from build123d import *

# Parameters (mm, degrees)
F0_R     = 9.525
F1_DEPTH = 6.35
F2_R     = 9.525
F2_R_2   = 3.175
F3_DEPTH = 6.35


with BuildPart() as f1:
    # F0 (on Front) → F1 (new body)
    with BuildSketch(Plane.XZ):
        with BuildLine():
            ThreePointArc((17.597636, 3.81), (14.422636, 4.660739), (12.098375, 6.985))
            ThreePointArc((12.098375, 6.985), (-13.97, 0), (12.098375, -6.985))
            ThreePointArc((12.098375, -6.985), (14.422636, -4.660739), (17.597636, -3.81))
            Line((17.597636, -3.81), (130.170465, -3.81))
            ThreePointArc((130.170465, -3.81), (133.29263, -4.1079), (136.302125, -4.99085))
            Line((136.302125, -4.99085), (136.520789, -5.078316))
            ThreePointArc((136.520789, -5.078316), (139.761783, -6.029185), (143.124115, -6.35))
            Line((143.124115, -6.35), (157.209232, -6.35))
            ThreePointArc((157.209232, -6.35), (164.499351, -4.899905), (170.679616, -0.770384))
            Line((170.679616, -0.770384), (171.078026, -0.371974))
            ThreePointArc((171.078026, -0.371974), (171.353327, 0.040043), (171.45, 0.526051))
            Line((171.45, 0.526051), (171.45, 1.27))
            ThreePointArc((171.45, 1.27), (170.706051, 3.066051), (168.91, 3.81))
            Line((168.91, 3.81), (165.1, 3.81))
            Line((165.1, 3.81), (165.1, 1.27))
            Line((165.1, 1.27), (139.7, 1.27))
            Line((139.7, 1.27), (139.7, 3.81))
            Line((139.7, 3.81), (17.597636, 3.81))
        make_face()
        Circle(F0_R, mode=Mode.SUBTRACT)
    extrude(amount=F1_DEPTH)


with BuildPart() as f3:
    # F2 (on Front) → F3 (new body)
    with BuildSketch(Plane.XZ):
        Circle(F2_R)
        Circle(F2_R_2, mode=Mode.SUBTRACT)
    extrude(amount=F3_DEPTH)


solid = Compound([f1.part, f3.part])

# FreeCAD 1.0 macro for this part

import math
import FreeCAD as App
import Part
import Sketcher
from FreeCAD import Vector
Q = App.Units.Quantity

doc = App.newDocument("Part")
body = doc.addObject("PartDesign::Body", "Body")

sketch1 = doc.addObject("Sketcher::SketchObject", "Sketch")
body.addObject(sketch1)
sketch1.AttachmentSupport = (doc.XZ_Plane, [""])
sketch1.MapMode = "FlatFace"
sketch1.addGeometry(Part.ArcOfCircle(Part.Circle(Vector(17.6, 10.16, 0), Vector(0, 0, 1), 6.35), math.radians(-150), math.radians(-90)), False)
sketch1.addGeometry(Part.ArcOfCircle(Part.Circle(Vector(0, 0, 0), Vector(0, 0, 1), 13.97), math.radians(30), math.radians(330)), False)
sketch1.addGeometry(Part.ArcOfCircle(Part.Circle(Vector(17.6, -10.16, 0), Vector(0, 0, 1), 6.35), math.radians(90), math.radians(150)), False)
sketch1.addGeometry(Part.LineSegment(Vector(17.6, -3.81, 0), Vector(130.17, -3.81, 0)), False)
sketch1.addGeometry(Part.ArcOfCircle(Part.Circle(Vector(130.17, -20.32, 0), Vector(0, 0, 1), 16.51), math.radians(68), math.radians(90)), False)
sketch1.addGeometry(Part.LineSegment(Vector(136.3, -4.99, 0), Vector(136.52, -5.08, 0)), False)
sketch1.addGeometry(Part.ArcOfCircle(Part.Circle(Vector(143.12, 11.43, 0), Vector(0, 0, 1), 17.78), math.radians(-112), math.radians(-90)), False)
sketch1.addGeometry(Part.LineSegment(Vector(143.12, -6.35, 0), Vector(157.21, -6.35, 0)), False)
sketch1.addGeometry(Part.ArcOfCircle(Part.Circle(Vector(157.21, 12.7, 0), Vector(0, 0, 1), 19.05), math.radians(-90), math.radians(-45)), False)
sketch1.addGeometry(Part.LineSegment(Vector(170.68, -0.77, 0), Vector(171.08, -0.37, 0)), False)
sketch1.addGeometry(Part.ArcOfCircle(Part.Circle(Vector(170.18, 0.53, 0), Vector(0, 0, 1), 1.27), math.radians(-45), math.radians(0)), False)
sketch1.addGeometry(Part.LineSegment(Vector(171.45, 0.53, 0), Vector(171.45, 1.27, 0)), False)
sketch1.addGeometry(Part.ArcOfCircle(Part.Circle(Vector(168.91, 1.27, 0), Vector(0, 0, 1), 2.54), math.radians(0), math.radians(90)), False)
sketch1.addGeometry(Part.LineSegment(Vector(168.91, 3.81, 0), Vector(165.1, 3.81, 0)), False)
sketch1.addGeometry(Part.LineSegment(Vector(165.1, 3.81, 0), Vector(165.1, 1.27, 0)), False)
sketch1.addGeometry(Part.LineSegment(Vector(165.1, 1.27, 0), Vector(139.7, 1.27, 0)), False)
sketch1.addGeometry(Part.LineSegment(Vector(139.7, 1.27, 0), Vector(139.7, 3.81, 0)), False)
sketch1.addGeometry(Part.LineSegment(Vector(139.7, 3.81, 0), Vector(17.6, 3.81, 0)), False)
sketch1.addGeometry(Part.Circle(Vector(0, 0, 0), Vector(0, 0, 1), 9.53), False)
sketch1.addConstraint(Sketcher.Constraint("Tangent", 0, 1, 1, 1))
sketch1.addConstraint(Sketcher.Constraint("Tangent", 1, 2, 2, 2))
sketch1.addConstraint(Sketcher.Constraint("Tangent", 2, 1, 3, 1))
sketch1.addConstraint(Sketcher.Constraint("Tangent", 3, 2, 4, 2))
sketch1.addConstraint(Sketcher.Constraint("Tangent", 4, 1, 5, 1))
sketch1.addConstraint(Sketcher.Constraint("Tangent", 5, 2, 6, 1))
sketch1.addConstraint(Sketcher.Constraint("Tangent", 6, 2, 7, 1))
sketch1.addConstraint(Sketcher.Constraint("Tangent", 7, 2, 8, 1))
sketch1.addConstraint(Sketcher.Constraint("Tangent", 8, 2, 9, 1))
sketch1.addConstraint(Sketcher.Constraint("Tangent", 9, 2, 10, 1))
sketch1.addConstraint(Sketcher.Constraint("Tangent", 10, 2, 11, 1))
sketch1.addConstraint(Sketcher.Constraint("Tangent", 11, 2, 12, 1))
sketch1.addConstraint(Sketcher.Constraint("Tangent", 12, 2, 13, 1))
sketch1.addConstraint(Sketcher.Constraint("Coincident", 13, 2, 14, 1))
sketch1.addConstraint(Sketcher.Constraint("Coincident", 14, 2, 15, 1))
sketch1.addConstraint(Sketcher.Constraint("Coincident", 15, 2, 16, 1))
sketch1.addConstraint(Sketcher.Constraint("Coincident", 16, 2, 17, 1))
sketch1.addConstraint(Sketcher.Constraint("Tangent", 17, 2, 0, 2))
sketch1.addConstraint(Sketcher.Constraint("Horizontal", 3))
sketch1.addConstraint(Sketcher.Constraint("Horizontal", 7))
sketch1.addConstraint(Sketcher.Constraint("Vertical", 11))
sketch1.addConstraint(Sketcher.Constraint("Horizontal", 13))
sketch1.addConstraint(Sketcher.Constraint("Vertical", 14))
sketch1.addConstraint(Sketcher.Constraint("Horizontal", 15))
sketch1.addConstraint(Sketcher.Constraint("Vertical", 16))
sketch1.addConstraint(Sketcher.Constraint("Horizontal", 17))
sketch1.addConstraint(Sketcher.Constraint("Coincident", 1, 3, -1, 1))
sketch1.addConstraint(Sketcher.Constraint("Coincident", 18, 3, -1, 1))
sketch1.addConstraint(Sketcher.Constraint("Equal", 0, 2))
sketch1.addConstraint(Sketcher.Constraint("Horizontal", 11, 2, 14, 2))
sketch1.addConstraint(Sketcher.Constraint("Horizontal", 13, 2, 16, 2))
sketch1.addConstraint(Sketcher.Constraint("Vertical", 0, 3, 2, 3))
sketch1.addConstraint(Sketcher.Constraint("Radius", 12, Q("0.1 in")))
sketch1.addConstraint(Sketcher.Constraint("Diameter", 18, Q("0.75 in")))
sketch1.addConstraint(Sketcher.Constraint("DistanceX", 15, 2, 15, 1, Q("1 in")))
sketch1.addConstraint(Sketcher.Constraint("Radius", 0, Q("0.25 in")))
sketch1.addConstraint(Sketcher.Constraint("Radius", 1, Q("0.55 in")))
sketch1.addConstraint(Sketcher.Constraint("Radius", 8, Q("0.75 in")))
sketch1.addConstraint(Sketcher.Constraint("Radius", 10, Q("0.05 in")))
sketch1.addConstraint(Sketcher.Constraint("Angle", 9, Q("45 deg")))
sketch1.addConstraint(Sketcher.Constraint("DistanceX", 13, 2, 13, 1, Q("0.15 in")))
sketch1.addConstraint(Sketcher.Constraint("DistanceY", -1, 1, 0, 3, Q("0.4 in")))
sketch1.addConstraint(Sketcher.Constraint("DistanceY", -1, 1, 8, 3, Q("0.5 in")))
sketch1.addConstraint(Sketcher.Constraint("DistanceX", -1, 1, 10, 3, Q("6.7 in")))
sketch1.addConstraint(Sketcher.Constraint("DistanceY", 4, 3, 8, 3, Q("1.2999998 in")))
sketch1.addConstraint(Sketcher.Constraint("Radius", 6, Q("17.779982 mm")))
sketch1.addConstraint(Sketcher.Constraint("DistanceX", 3, 1, 3, 2, Q("112.572829 mm")))
sketch1.addConstraint(Sketcher.Constraint("DistanceY", 11, 1, 11, 2, Q("0.743949 mm")))
sketch1.addConstraint(Sketcher.Constraint("DistanceY", 5, 2, 6, 3, Q("16.508298 mm")))
pad1 = doc.addObject("PartDesign::Pad", "Pad")
body.addObject(pad1)
pad1.Profile = sketch1
pad1.Length = Q("0.25 in")
body2 = doc.addObject("PartDesign::Body", "Body001")

sketch2 = doc.addObject("Sketcher::SketchObject", "Sketch001")
body2.addObject(sketch2)
sketch2.AttachmentSupport = (doc.getObject("XZ_Plane001"), [""])
sketch2.MapMode = "FlatFace"
sketch2.addGeometry(Part.Circle(Vector(0, 0, 0), Vector(0, 0, 1), 9.5), False)
sketch2.addGeometry(Part.Circle(Vector(0, 0, 0), Vector(0, 0, 1), 3.2), False)
sketch2.addConstraint(Sketcher.Constraint("Coincident", 0, 3, -1, 1))
sketch2.addConstraint(Sketcher.Constraint("Coincident", 1, 3, -1, 1))
sketch2.addConstraint(Sketcher.Constraint("Diameter", 0, Q("0.75 in")))
sketch2.addConstraint(Sketcher.Constraint("Diameter", 1, Q("0.25 in")))
pad2 = doc.addObject("PartDesign::Pad", "Pad001")
body2.addObject(pad2)
pad2.Profile = sketch2
pad2.Length = Q("0.25 in")

doc.recompute()
